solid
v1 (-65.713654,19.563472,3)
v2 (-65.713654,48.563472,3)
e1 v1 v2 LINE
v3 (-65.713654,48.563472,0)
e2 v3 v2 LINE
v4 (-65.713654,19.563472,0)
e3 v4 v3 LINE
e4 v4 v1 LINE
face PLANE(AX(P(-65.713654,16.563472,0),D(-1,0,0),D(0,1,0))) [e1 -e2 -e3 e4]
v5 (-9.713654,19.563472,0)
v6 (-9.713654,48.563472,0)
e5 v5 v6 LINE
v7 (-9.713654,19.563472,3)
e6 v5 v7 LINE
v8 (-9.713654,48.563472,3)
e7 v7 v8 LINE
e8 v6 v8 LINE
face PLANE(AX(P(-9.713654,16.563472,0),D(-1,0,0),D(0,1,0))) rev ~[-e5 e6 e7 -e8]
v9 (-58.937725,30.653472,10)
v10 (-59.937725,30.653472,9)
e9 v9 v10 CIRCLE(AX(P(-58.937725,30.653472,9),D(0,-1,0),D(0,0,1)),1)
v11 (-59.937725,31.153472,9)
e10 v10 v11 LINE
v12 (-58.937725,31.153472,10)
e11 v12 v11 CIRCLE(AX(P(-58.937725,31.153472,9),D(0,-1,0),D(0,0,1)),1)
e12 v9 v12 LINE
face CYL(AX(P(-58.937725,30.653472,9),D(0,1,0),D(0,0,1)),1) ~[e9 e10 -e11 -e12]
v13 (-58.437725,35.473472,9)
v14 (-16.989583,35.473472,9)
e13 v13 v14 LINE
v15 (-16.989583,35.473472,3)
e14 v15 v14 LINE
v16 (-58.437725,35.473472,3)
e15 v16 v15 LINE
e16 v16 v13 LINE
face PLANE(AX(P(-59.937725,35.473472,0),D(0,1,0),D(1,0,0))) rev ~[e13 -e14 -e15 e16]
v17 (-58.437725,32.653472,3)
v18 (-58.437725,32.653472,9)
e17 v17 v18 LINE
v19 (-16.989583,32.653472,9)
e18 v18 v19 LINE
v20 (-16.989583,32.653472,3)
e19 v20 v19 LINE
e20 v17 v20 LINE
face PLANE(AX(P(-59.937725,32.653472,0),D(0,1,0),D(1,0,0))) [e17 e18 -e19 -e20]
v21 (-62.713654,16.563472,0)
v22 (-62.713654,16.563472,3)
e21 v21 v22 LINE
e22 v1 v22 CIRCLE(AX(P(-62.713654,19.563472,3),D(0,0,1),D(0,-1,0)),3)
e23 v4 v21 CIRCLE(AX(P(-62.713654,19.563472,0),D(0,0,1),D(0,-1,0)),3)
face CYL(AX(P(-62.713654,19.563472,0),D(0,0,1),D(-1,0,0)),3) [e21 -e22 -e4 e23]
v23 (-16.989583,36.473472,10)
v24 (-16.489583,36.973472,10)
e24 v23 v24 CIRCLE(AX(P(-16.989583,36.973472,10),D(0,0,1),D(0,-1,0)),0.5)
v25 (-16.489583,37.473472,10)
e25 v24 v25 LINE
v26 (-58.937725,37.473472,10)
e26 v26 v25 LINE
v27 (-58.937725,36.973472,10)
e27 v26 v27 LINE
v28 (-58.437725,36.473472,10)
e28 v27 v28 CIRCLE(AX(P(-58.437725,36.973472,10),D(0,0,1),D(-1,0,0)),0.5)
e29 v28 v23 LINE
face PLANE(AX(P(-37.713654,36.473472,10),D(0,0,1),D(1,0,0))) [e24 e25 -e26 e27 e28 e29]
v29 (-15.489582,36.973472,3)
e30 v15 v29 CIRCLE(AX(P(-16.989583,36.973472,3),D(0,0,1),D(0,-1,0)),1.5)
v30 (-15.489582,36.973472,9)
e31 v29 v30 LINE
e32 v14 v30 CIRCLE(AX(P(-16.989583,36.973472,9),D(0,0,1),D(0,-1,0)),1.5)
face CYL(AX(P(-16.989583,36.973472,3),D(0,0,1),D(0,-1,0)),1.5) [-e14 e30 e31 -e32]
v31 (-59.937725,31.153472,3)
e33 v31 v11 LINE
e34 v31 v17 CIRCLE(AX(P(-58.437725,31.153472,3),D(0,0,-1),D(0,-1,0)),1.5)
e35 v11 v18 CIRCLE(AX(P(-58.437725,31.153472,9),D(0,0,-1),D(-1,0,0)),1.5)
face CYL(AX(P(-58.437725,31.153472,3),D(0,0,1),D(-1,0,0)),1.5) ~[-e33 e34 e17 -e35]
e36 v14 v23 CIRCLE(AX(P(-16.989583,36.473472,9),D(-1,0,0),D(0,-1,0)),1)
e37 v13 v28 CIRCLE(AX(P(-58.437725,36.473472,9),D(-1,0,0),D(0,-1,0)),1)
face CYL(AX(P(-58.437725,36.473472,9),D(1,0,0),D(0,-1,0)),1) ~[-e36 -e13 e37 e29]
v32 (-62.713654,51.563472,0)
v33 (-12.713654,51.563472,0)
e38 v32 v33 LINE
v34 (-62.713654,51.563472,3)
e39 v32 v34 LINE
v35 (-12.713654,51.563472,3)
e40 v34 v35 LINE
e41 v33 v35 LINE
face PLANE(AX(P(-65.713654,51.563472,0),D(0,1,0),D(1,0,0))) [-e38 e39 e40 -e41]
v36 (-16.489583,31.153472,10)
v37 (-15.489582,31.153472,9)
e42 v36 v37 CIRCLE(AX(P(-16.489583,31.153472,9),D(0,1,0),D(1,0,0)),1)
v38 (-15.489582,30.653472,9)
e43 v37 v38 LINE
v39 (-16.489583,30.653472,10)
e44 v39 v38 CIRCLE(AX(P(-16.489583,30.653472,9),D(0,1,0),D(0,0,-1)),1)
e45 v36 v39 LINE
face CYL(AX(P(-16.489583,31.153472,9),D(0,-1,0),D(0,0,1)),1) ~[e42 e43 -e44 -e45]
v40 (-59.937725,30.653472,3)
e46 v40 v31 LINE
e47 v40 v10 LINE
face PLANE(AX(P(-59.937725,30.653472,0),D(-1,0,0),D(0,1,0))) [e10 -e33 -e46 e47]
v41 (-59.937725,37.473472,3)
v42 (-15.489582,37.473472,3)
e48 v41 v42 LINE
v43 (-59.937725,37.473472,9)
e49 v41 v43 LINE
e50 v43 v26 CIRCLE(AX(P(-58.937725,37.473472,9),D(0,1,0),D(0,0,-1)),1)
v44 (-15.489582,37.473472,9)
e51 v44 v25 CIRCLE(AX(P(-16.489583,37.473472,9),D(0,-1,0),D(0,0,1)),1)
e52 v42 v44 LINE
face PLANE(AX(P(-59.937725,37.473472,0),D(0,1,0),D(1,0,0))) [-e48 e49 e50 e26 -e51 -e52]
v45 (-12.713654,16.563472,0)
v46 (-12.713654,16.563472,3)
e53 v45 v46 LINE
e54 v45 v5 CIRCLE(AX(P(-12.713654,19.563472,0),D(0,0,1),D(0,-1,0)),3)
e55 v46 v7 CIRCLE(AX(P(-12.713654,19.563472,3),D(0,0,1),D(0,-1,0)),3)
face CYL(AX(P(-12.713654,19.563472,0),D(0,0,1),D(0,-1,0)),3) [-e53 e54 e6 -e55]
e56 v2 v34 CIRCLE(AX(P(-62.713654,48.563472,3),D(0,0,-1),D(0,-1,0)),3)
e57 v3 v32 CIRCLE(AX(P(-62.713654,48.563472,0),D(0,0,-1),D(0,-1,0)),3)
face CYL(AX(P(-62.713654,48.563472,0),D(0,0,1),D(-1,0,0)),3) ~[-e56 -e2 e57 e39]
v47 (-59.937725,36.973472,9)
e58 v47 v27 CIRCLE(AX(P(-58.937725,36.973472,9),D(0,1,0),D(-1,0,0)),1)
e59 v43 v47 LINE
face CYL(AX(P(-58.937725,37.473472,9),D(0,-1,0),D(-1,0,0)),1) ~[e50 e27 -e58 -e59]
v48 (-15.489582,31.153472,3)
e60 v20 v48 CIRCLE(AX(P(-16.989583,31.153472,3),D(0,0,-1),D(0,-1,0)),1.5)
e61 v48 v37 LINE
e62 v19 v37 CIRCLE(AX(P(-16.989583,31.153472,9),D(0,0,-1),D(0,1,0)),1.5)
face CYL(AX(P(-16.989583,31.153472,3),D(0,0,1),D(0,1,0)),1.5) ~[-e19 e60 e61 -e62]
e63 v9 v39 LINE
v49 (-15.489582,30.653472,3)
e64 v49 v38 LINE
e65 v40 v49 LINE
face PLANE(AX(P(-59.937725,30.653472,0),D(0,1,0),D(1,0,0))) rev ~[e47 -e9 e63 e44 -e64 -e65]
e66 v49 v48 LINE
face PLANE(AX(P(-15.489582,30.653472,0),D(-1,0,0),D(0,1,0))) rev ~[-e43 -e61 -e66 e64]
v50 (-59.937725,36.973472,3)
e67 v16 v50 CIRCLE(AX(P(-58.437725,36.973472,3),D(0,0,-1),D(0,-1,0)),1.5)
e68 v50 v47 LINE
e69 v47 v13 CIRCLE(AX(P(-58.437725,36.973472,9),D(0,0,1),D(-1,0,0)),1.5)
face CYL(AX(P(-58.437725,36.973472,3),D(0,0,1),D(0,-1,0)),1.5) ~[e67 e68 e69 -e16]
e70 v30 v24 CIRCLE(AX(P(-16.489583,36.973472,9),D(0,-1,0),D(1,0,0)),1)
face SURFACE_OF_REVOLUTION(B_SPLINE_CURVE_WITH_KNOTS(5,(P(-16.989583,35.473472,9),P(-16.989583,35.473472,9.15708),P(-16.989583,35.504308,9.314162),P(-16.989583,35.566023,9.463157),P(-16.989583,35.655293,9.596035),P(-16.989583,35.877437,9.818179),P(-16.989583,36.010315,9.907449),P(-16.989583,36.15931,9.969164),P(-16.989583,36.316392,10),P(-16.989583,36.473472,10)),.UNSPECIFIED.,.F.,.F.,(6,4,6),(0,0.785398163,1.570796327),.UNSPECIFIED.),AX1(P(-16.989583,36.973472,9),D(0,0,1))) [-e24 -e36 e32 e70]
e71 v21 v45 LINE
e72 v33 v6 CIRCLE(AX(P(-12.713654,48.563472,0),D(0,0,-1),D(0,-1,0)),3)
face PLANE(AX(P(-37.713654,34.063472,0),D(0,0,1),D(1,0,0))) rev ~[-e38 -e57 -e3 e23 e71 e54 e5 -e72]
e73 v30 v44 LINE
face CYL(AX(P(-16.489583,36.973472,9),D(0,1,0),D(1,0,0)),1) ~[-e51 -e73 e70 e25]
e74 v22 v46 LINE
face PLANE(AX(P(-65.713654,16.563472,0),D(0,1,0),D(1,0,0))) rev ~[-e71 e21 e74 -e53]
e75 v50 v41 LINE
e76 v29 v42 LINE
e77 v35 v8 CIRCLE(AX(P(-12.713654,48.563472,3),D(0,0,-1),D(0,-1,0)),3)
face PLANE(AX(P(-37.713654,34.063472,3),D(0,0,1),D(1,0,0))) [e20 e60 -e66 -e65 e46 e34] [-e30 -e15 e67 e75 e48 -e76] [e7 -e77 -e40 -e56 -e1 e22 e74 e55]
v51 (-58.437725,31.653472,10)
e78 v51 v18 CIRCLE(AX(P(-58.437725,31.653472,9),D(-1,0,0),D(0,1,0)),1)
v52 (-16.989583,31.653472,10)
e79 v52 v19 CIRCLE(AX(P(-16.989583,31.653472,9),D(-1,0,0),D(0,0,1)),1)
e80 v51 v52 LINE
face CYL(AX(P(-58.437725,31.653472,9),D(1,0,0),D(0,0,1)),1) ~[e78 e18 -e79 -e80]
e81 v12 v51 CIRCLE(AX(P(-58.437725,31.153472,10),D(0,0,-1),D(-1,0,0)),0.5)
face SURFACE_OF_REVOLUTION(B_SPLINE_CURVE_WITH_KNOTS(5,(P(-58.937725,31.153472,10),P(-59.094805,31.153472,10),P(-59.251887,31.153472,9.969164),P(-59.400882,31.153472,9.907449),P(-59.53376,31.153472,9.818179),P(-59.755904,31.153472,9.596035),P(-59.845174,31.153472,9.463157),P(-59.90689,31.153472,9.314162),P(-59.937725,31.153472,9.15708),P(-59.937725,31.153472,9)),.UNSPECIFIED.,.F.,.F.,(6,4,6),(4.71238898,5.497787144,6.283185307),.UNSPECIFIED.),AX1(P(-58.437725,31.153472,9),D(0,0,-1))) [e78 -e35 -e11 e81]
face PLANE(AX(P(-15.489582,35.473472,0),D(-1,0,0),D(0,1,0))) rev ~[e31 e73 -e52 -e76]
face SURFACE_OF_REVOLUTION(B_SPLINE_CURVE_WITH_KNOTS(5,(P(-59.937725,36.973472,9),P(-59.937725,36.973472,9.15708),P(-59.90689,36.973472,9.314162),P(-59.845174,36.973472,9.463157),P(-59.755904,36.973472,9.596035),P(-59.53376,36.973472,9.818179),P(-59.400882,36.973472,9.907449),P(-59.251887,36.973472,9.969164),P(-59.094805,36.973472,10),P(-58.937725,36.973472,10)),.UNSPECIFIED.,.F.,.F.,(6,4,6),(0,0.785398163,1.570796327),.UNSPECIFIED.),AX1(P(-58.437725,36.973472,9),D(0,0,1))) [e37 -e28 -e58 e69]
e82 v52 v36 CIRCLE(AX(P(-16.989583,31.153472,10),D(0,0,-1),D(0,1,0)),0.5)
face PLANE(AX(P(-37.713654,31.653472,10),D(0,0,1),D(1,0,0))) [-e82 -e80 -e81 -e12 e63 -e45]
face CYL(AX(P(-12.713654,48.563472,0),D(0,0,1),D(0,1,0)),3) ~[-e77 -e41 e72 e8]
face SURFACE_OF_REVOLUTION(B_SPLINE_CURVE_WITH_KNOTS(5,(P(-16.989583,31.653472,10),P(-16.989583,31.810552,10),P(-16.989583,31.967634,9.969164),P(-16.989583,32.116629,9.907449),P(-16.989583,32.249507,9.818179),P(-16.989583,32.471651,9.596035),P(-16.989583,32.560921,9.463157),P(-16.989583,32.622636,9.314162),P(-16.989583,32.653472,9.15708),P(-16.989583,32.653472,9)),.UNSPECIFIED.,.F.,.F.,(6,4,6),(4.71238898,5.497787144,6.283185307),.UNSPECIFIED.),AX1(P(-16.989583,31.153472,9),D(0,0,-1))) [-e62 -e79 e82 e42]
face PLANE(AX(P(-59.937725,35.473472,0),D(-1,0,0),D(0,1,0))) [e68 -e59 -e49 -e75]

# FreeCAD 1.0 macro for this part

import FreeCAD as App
import Part
import Sketcher

V = App.Vector
Q = App.Units.Quantity


def edges_at(feature, points):
    """Names of the edges that pass closest to the given points."""
    edges = feature.Shape.Edges
    near = lambda p: min(range(len(edges)), key=lambda i: edges[i].distToShape(Part.Vertex(*p))[0])
    return sorted({f"Edge{near(p) + 1}" for p in points})


def add_polygon(sketch, points):
    """Adds a closed chain of lines whose ends are joined by coincident constraints."""
    first, n = sketch.GeometryCount, len(points)
    for a, b in zip(points, points[1:] + points[:1]):
        sketch.addGeometry(Part.LineSegment(App.Vector(*a, 0), App.Vector(*b, 0)), False)
    for i in range(n):
        sketch.addConstraint(Sketcher.Constraint("Coincident", first + i, 2, first + (i + 1) % n, 1))

doc = App.newDocument("Part")
body = doc.addObject("PartDesign::Body", "Body")

# Sketch on XY plane
sketch1 = body.newObject("Sketcher::SketchObject", "Sketch")
sketch1.AttachmentSupport = (doc.getObject("XY_Plane"), [""])
sketch1.MapMode = "FlatFace"
add_polygon(sketch1, [(-65.7, 51.6), (-65.7, 16.6), (-9.7, 16.6), (-9.7, 51.6)])  # lines 0-3
add_polygon(sketch1, [(-15.5, 30.7), (-59.9, 30.7), (-59.9, 32.7), (-15.5, 32.7)])  # lines 4-7
add_polygon(sketch1, [(-15.5, 35.5), (-59.9, 35.5), (-59.9, 37.5), (-15.5, 37.5)])  # lines 8-11
sketch1.addConstraint(Sketcher.Constraint("Vertical", 0))
sketch1.addConstraint(Sketcher.Constraint("Horizontal", 1))
sketch1.addConstraint(Sketcher.Constraint("Vertical", 2))
sketch1.addConstraint(Sketcher.Constraint("Horizontal", 3))
sketch1.addConstraint(Sketcher.Constraint("Horizontal", 4))
sketch1.addConstraint(Sketcher.Constraint("Vertical", 5))
sketch1.addConstraint(Sketcher.Constraint("Horizontal", 6))
sketch1.addConstraint(Sketcher.Constraint("Vertical", 7))
sketch1.addConstraint(Sketcher.Constraint("Horizontal", 8))
sketch1.addConstraint(Sketcher.Constraint("Vertical", 9))
sketch1.addConstraint(Sketcher.Constraint("Horizontal", 10))
sketch1.addConstraint(Sketcher.Constraint("Vertical", 11))
sketch1.addConstraint(Sketcher.Constraint("Vertical", 5, 2, 8, 2))
sketch1.addConstraint(Sketcher.Constraint("Vertical", 7, 2, 10, 2))
sketch1.addConstraint(Sketcher.Constraint("Equal", 7, 9))
sketch1.addConstraint(Sketcher.Constraint("DistanceX", 1, 1, 1, 2, Q("56 mm")))
sketch1.addConstraint(Sketcher.Constraint("DistanceY", 0, 2, 0, 1, Q("35 mm")))
sketch1.addConstraint(Sketcher.Constraint("DistanceY", 5, 1, 5, 2, Q("2 mm")))
sketch1.addConstraint(Sketcher.Constraint("DistanceY", 0, 2, 4, 2, Q("14.09 mm")))
sketch1.addConstraint(Sketcher.Constraint("DistanceY", 5, 2, 8, 2, Q("2.82 mm")))
sketch1.addConstraint(Sketcher.Constraint("DistanceX", 4, 2, 4, 1, Q("44.448143 mm")))
sketch1.addConstraint(Sketcher.Constraint("DistanceY", -1, 1, 2, 2, Q("51.563472 mm")))
sketch1.addConstraint(Sketcher.Constraint("DistanceX", 0, 2, 4, 2, Q("5.775929 mm")))
sketch1.addConstraint(Sketcher.Constraint("DistanceX", 0, 2, -1, 1, Q("65.713654 mm")))
pad1 = body.newObject("PartDesign::Pad", "Pad")
pad1.Profile = sketch1
pad1.Length = 3

# Sketch on XY plane
sketch2 = body.newObject("Sketcher::SketchObject", "Sketch001")
sketch2.AttachmentSupport = (doc.getObject("XY_Plane"), [""])
sketch2.MapMode = "FlatFace"
add_polygon(sketch2, [(-59.9, 32.7), (-59.9, 30.7), (-15.5, 30.7), (-15.5, 32.7)])  # lines 0-3
add_polygon(sketch2, [(-59.9, 37.5), (-59.9, 35.5), (-15.5, 35.5), (-15.5, 37.5)])  # lines 4-7
sketch2.addConstraint(Sketcher.Constraint("Vertical", 0))
sketch2.addConstraint(Sketcher.Constraint("Horizontal", 1))
sketch2.addConstraint(Sketcher.Constraint("Vertical", 2))
sketch2.addConstraint(Sketcher.Constraint("Horizontal", 3))
sketch2.addConstraint(Sketcher.Constraint("Vertical", 4))
sketch2.addConstraint(Sketcher.Constraint("Horizontal", 5))
sketch2.addConstraint(Sketcher.Constraint("Vertical", 6))
sketch2.addConstraint(Sketcher.Constraint("Horizontal", 7))
sketch2.addConstraint(Sketcher.Constraint("Vertical", 3, 2, 4, 2))
sketch2.addConstraint(Sketcher.Constraint("Vertical", 2, 2, 5, 2))
sketch2.addConstraint(Sketcher.Constraint("Equal", 2, 4))
sketch2.addConstraint(Sketcher.Constraint("DistanceY", 0, 2, 0, 1, Q("2 mm")))
sketch2.addConstraint(Sketcher.Constraint("DistanceY", 3, 2, 4, 2, Q("2.82 mm")))
sketch2.addConstraint(Sketcher.Constraint("DistanceX", 1, 1, 1, 2, Q("44.448143 mm")))
sketch2.addConstraint(Sketcher.Constraint("DistanceX", 0, 2, -1, 1, Q("59.937725 mm")))
sketch2.addConstraint(Sketcher.Constraint("DistanceY", -1, 1, 0, 2, Q("30.653472 mm")))
pad2 = body.newObject("PartDesign::Pad", "Pad001")
pad2.Profile = sketch2
pad2.Length = 10
doc.recompute()

fillet = body.newObject("PartDesign::Fillet", "Fillet")
fillet.Base = (pad2, edges_at(pad2, [
    (-59.938, 35.473, 6.5),
    (-59.938, 32.653, 6.5),
    (-15.49, 35.473, 6.5),
    (-15.49, 32.653, 6.5),
]))
fillet.Radius = 1.5
doc.recompute()

fillet2 = body.newObject("PartDesign::Fillet", "Fillet001")
fillet2.Base = (fillet, edges_at(fillet, [(-37.714, 35.473, 10), (-37.714, 32.653, 10)]))
fillet2.Radius = 1
doc.recompute()

fillet3 = body.newObject("PartDesign::Fillet", "Fillet002")
fillet3.Base = (fillet2, edges_at(fillet2, [
    (-9.714, 51.563, 1.5),
    (-65.714, 16.563, 1.5),
    (-65.714, 51.563, 1.5),
    (-9.714, 16.563, 1.5),
]))
fillet3.Radius = 3

doc.recompute()
